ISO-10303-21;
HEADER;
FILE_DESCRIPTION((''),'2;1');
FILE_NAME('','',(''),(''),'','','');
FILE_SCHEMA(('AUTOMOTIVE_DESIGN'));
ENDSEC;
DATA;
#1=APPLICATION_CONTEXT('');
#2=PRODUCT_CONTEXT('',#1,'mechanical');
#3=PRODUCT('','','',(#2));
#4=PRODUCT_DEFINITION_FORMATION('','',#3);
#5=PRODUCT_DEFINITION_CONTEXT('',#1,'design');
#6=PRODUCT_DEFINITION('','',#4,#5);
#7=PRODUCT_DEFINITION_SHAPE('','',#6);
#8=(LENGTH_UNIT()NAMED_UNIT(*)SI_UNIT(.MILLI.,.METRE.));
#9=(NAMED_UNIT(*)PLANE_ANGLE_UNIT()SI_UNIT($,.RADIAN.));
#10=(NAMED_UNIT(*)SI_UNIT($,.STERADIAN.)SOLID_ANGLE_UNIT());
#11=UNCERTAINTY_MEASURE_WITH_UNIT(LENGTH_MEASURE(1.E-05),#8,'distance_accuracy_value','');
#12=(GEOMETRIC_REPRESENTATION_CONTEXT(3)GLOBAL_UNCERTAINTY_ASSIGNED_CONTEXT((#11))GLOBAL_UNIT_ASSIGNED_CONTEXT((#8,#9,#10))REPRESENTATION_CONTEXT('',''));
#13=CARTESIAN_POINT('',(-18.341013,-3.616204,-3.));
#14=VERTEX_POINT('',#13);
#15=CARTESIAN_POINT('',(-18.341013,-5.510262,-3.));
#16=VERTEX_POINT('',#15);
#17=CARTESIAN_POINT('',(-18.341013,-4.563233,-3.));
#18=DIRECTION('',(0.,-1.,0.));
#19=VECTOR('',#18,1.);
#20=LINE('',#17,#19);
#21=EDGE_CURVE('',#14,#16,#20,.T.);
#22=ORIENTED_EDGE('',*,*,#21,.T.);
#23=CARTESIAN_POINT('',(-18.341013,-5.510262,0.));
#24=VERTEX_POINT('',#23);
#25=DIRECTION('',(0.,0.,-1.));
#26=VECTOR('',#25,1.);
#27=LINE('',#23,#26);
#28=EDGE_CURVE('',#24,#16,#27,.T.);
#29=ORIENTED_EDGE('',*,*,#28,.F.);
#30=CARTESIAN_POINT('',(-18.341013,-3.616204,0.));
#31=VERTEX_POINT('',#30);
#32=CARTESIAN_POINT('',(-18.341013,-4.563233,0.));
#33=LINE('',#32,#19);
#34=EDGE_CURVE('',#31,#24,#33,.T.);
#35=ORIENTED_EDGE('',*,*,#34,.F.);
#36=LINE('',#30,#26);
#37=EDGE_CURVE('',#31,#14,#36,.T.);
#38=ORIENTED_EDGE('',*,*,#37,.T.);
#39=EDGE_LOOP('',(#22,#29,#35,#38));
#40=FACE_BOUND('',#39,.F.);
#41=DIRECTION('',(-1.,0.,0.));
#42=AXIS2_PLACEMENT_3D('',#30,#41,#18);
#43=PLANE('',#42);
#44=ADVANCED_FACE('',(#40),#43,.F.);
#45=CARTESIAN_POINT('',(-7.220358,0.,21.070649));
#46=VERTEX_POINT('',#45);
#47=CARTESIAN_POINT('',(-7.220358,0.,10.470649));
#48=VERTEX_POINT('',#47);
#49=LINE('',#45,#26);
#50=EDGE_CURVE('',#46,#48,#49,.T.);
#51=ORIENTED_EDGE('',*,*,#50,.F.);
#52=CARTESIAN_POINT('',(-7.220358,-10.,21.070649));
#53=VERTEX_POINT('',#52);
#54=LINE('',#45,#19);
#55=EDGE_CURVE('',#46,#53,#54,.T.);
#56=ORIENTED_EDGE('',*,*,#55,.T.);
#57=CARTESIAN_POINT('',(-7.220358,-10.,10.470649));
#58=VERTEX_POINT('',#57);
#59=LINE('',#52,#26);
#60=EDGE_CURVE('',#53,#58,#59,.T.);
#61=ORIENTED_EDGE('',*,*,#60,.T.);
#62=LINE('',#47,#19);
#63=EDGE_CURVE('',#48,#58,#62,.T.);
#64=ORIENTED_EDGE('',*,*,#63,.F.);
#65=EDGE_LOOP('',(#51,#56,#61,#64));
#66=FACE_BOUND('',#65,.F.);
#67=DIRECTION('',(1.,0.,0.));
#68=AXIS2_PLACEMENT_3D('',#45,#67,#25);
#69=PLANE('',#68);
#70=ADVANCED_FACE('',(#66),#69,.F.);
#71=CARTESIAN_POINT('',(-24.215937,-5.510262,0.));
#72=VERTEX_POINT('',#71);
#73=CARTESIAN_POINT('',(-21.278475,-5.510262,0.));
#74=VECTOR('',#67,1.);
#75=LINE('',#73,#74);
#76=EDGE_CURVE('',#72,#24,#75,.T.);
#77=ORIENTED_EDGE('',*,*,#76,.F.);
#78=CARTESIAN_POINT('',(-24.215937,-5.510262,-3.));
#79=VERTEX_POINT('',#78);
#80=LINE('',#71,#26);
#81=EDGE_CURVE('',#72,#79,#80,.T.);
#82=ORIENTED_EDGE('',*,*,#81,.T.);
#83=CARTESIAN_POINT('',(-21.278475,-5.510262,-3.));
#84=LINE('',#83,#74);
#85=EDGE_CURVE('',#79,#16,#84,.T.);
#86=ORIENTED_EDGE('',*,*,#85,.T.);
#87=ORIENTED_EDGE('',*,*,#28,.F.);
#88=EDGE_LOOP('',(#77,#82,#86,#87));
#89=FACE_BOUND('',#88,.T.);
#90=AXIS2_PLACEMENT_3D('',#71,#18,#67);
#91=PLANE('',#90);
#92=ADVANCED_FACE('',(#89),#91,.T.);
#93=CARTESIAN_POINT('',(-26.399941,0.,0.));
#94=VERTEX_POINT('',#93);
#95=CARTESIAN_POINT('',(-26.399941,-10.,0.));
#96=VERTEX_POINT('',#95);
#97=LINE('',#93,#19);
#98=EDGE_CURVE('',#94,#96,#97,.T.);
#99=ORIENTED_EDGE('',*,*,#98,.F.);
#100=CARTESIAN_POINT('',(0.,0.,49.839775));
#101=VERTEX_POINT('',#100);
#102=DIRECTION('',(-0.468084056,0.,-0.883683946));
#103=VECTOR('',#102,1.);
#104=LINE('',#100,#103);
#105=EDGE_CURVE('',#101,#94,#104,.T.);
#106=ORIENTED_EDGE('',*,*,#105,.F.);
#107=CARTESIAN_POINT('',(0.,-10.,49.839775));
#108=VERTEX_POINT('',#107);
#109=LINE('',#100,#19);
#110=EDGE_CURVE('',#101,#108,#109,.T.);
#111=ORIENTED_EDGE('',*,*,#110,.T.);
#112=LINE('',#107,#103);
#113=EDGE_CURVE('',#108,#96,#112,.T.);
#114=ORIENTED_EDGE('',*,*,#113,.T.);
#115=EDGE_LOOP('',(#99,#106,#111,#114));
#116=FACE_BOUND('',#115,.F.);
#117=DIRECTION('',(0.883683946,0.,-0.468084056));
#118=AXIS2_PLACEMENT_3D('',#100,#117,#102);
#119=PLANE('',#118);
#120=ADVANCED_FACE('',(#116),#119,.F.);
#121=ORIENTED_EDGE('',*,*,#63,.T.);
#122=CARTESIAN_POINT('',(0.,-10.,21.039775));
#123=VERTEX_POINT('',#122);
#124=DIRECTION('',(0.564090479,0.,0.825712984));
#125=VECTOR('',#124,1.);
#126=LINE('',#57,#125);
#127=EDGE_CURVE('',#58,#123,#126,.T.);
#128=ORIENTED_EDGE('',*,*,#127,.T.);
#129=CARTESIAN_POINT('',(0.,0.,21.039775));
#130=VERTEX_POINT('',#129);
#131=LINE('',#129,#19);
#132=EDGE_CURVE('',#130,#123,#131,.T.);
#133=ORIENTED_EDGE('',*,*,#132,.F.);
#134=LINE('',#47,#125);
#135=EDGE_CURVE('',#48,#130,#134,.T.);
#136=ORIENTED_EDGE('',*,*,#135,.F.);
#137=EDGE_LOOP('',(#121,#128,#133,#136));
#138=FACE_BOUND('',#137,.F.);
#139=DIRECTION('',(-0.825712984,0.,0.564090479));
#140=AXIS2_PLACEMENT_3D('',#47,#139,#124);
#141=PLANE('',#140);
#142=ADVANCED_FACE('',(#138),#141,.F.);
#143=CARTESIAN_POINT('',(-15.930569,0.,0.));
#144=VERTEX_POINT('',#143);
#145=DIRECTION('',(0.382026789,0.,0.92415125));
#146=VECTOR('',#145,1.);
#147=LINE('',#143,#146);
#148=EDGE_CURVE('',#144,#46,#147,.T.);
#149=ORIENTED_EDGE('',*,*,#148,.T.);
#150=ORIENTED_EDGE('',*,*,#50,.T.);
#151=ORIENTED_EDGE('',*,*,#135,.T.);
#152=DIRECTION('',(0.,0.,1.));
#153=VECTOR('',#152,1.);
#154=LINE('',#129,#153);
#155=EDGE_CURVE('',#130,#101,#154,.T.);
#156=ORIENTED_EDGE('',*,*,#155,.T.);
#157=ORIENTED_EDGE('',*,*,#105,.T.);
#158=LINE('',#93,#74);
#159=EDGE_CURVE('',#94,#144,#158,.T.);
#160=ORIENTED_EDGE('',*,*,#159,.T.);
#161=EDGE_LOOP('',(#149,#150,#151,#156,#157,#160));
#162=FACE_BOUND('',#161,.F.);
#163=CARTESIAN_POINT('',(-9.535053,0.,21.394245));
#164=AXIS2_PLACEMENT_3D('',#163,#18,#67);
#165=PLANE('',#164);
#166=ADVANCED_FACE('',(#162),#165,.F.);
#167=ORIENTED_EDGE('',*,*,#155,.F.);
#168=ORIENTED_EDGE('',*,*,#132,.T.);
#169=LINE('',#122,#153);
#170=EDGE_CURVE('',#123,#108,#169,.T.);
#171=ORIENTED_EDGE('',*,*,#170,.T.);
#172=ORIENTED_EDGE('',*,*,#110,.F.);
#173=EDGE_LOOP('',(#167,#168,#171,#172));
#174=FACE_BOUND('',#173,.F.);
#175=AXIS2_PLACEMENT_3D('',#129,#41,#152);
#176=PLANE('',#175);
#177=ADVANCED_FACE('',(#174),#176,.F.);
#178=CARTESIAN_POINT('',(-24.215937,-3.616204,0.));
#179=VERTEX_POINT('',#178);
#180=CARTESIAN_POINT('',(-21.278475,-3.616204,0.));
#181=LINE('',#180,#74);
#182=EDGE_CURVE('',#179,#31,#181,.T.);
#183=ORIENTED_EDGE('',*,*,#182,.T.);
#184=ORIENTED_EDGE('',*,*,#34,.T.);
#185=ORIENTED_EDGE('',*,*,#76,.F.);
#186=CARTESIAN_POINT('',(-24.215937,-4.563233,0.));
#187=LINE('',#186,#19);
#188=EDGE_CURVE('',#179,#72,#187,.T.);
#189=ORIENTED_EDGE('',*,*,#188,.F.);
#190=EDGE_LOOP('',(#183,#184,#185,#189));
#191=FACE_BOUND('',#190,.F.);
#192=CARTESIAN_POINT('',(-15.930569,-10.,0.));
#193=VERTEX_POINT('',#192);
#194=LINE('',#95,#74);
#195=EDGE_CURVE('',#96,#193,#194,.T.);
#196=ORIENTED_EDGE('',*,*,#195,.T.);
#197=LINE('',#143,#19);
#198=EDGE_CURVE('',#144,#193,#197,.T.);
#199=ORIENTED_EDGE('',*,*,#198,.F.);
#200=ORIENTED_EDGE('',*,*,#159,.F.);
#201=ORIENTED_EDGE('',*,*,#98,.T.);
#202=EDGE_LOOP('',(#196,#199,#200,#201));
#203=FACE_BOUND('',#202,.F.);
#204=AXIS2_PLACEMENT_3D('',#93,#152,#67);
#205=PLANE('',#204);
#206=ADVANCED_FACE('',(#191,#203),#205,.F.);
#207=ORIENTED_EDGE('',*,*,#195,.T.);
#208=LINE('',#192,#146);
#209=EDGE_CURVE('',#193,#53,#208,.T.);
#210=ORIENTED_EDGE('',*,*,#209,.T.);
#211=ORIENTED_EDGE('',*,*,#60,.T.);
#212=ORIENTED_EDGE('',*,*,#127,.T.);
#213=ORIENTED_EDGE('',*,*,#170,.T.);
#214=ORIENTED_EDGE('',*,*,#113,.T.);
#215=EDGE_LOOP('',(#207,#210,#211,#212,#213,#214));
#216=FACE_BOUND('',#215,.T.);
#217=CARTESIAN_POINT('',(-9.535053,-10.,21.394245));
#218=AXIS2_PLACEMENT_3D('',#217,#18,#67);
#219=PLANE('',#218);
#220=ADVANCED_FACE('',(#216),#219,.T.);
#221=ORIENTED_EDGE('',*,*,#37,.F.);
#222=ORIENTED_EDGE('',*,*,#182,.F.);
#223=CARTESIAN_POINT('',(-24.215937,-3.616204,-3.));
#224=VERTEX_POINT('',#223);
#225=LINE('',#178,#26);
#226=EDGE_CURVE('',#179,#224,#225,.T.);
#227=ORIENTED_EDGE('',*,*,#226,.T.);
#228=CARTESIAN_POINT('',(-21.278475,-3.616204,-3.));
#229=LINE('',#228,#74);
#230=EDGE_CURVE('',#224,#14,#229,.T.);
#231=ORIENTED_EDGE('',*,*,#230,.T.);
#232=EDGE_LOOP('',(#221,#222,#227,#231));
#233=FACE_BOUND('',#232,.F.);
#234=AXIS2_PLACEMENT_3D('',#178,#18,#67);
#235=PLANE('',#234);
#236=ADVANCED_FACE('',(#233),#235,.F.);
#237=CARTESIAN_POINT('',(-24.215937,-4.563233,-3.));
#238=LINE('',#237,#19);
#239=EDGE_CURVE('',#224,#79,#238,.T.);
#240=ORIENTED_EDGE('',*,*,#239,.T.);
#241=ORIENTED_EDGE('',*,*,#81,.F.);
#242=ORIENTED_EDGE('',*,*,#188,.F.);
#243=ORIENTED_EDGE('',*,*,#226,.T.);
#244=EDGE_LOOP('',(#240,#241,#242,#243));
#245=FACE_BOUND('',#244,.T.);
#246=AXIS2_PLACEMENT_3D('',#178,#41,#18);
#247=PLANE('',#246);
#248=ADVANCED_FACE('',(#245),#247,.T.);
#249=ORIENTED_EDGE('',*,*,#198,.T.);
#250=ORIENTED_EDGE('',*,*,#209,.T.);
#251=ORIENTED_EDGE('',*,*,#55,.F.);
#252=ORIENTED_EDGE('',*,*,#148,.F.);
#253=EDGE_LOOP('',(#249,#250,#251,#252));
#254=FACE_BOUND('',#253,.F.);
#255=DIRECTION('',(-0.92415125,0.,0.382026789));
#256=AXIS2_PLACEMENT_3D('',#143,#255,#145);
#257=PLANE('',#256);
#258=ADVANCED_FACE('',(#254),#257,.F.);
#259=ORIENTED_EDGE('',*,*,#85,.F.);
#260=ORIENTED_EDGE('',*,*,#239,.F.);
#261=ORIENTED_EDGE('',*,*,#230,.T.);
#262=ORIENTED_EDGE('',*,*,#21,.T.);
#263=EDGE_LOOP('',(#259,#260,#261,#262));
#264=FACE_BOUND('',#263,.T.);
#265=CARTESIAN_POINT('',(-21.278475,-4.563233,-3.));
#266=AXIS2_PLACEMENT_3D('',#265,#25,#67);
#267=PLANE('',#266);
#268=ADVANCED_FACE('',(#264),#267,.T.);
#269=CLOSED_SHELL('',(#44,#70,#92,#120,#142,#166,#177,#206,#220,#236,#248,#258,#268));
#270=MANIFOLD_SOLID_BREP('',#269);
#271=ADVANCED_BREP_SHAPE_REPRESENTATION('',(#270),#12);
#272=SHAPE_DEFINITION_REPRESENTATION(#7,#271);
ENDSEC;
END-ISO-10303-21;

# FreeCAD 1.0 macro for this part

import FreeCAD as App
import Part
import Sketcher
from FreeCAD import Vector
Q = App.Units.Quantity


def add_polygon(sketch, points):
    """Adds a closed chain of lines whose ends are joined by coincident constraints."""
    first, n = sketch.GeometryCount, len(points)
    for a, b in zip(points, points[1:] + points[:1]):
        sketch.addGeometry(Part.LineSegment(App.Vector(*a, 0), App.Vector(*b, 0)), False)
    for i in range(n):
        sketch.addConstraint(Sketcher.Constraint("Coincident", first + i, 2, first + (i + 1) % n, 1))

doc = App.newDocument("Part")
body = doc.addObject("PartDesign::Body", "Body")

# Sketch on XZ plane
sketch1 = doc.addObject("Sketcher::SketchObject", "Sketch")
body.addObject(sketch1)
sketch1.AttachmentSupport = (doc.XZ_Plane, [""])
sketch1.MapMode = "FlatFace"
add_polygon(sketch1, [(0, 49.839775), (-26.399941, 0), (-15.930569, 0), (-7.220358, 21.070649), (-7.220358, 10.470649), (0, 21.039775)])  # lines 0-5
sketch1.addConstraint([
    Sketcher.Constraint("Horizontal", 1),
    Sketcher.Constraint("Vertical", 3),
    Sketcher.Constraint("Vertical", 5),
    Sketcher.Constraint("PointOnObject", 0, 2, -1),
    Sketcher.Constraint("PointOnObject", 4, 2, -2),
    Sketcher.Constraint("DistanceY", 3, 2, 3, 1, Q("10.6 mm")),
    Sketcher.Constraint("DistanceY", 5, 1, 5, 2, Q("28.8 mm")),
    Sketcher.Constraint("Distance", 0, Q("56.400001 mm")),
    Sketcher.Constraint("Distance", 2, Q("22.800001 mm")),
    Sketcher.Constraint("Distance", 4, Q("12.8 mm")),
    Sketcher.Constraint("Angle", 0, Q("-117.91 deg")),
    Sketcher.Constraint("DistanceX", 1, 1, 1, 2, Q("10.469372 mm")),
])
pad1 = doc.addObject("PartDesign::Pad", "Pad")
body.addObject(pad1)
pad1.Profile = sketch1
pad1.Length = 10

# Sketch on XY plane
sketch2 = doc.addObject("Sketcher::SketchObject", "Sketch001")
body.addObject(sketch2)
sketch2.AttachmentSupport = (doc.XY_Plane, [""])
sketch2.MapMode = "FlatFace"
add_polygon(sketch2, [(-24.215937, -5.510262), (-24.215937, -3.616204), (-18.341013, -3.616204), (-18.341013, -5.510262)])  # lines 0-3
sketch2.addConstraint([
    Sketcher.Constraint("Vertical", 0),
    Sketcher.Constraint("Horizontal", 1),
    Sketcher.Constraint("Vertical", 2),
    Sketcher.Constraint("Horizontal", 3),
    Sketcher.Constraint("DistanceX", 1, 1, 1, 2, Q("5.874925 mm")),
    Sketcher.Constraint("DistanceY", 0, 1, 0, 2, Q("1.894058 mm")),
    Sketcher.Constraint("DistanceX", 0, 2, -1, 1, Q("24.215937 mm")),
    Sketcher.Constraint("DistanceY", 0, 2, -1, 1, Q("3.616204 mm")),
])
pad2 = doc.addObject("PartDesign::Pad", "Pad001")
body.addObject(pad2)
pad2.Profile = sketch2
pad2.Length = 3
pad2.Reversed = True

doc.recompute()
